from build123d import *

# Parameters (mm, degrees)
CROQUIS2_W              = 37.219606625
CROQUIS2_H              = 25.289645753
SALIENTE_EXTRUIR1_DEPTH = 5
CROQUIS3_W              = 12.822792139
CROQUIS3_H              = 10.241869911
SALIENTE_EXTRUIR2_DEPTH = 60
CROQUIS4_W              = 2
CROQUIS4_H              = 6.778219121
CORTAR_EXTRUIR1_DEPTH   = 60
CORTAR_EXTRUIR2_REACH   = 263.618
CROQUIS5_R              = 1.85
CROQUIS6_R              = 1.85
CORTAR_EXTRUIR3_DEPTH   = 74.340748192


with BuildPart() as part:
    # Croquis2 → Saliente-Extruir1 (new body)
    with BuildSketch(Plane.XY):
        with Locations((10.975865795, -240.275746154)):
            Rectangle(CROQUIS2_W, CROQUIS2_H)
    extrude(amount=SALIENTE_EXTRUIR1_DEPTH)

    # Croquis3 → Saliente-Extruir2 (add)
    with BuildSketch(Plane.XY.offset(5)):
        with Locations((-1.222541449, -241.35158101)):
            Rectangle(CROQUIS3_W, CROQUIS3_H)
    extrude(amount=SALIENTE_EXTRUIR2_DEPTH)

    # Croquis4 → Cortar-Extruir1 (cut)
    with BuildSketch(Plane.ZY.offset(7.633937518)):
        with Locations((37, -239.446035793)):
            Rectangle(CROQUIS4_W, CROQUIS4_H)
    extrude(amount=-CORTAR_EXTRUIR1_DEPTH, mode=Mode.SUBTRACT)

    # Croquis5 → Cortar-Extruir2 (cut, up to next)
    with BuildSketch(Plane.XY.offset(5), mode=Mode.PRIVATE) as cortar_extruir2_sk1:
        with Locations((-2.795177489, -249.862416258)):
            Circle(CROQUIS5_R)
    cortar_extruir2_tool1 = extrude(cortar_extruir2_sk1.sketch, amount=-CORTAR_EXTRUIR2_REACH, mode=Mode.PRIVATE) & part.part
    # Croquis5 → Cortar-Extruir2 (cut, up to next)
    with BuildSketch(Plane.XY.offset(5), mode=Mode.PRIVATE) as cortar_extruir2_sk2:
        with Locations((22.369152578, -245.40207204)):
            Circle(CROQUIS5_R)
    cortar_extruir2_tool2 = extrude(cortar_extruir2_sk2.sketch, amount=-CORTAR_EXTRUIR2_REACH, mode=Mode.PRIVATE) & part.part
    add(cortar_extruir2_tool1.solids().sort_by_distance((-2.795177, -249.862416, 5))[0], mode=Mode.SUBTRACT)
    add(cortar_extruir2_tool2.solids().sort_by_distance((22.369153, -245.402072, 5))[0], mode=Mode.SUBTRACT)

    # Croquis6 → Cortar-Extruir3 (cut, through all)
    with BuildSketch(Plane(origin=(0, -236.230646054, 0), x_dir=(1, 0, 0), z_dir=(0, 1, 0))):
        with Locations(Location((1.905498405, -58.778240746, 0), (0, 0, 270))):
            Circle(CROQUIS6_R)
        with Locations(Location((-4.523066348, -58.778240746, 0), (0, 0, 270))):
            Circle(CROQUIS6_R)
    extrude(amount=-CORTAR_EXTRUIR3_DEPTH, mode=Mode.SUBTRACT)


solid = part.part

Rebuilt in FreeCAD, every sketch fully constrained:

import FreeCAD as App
import Part
import Sketcher
from FreeCAD import Vector
Q = App.Units.Quantity

doc = App.newDocument("Part")
params = doc.addObject("Spreadsheet::Sheet", "Params")
for row, (alias, value) in enumerate([
    ("pad1_length", "5 mm"),
    ("pad2_length", "60 mm"),
    ("sketch3_height", "2 mm"),
    ("pocket1_length", "60 mm"),
    ("sketch4_diameter", "3.7 mm"),
    ("sketch5_diameter", "3.7 mm"),
    ("sketch6_diameter", "3.7 mm"),
], start=1):
    params.set(f"A{row}", alias)
    params.set(f"B{row}", "=" + value)
    params.setAlias(f"B{row}", alias)

body = doc.addObject("PartDesign::Body", "Body")

# Sketch on XY plane
sketch1 = doc.addObject("Sketcher::SketchObject", "Sketch")
body.addObject(sketch1)
sketch1.AttachmentSupport = (doc.XY_Plane, [""])
sketch1.MapMode = "FlatFace"
sketch1.addGeometry([
    Part.LineSegment(Vector(-8, -228, 0), Vector(-8, -253, 0)),
    Part.LineSegment(Vector(-8, -253, 0), Vector(30, -253, 0)),
    Part.LineSegment(Vector(30, -253, 0), Vector(30, -228, 0)),
    Part.LineSegment(Vector(30, -228, 0), Vector(-8, -228, 0)),
], False)
sketch1.addConstraint([
    Sketcher.Constraint("Coincident", 0, 2, 1, 1),
    Sketcher.Constraint("Coincident", 1, 2, 2, 1),
    Sketcher.Constraint("Coincident", 2, 2, 3, 1),
    Sketcher.Constraint("Coincident", 3, 2, 0, 1),
    Sketcher.Constraint("Vertical", 0),
    Sketcher.Constraint("Horizontal", 1),
    Sketcher.Constraint("Vertical", 2),
    Sketcher.Constraint("Horizontal", 3),
    Sketcher.Constraint("DistanceX", 1, 1, 1, 2, Q("37.219607 mm")),
    Sketcher.Constraint("DistanceY", 0, 2, 0, 1, Q("25.289646 mm")),
    Sketcher.Constraint("DistanceY", 0, 2, -1, 1, Q("252.920569 mm")),
    Sketcher.Constraint("DistanceX", -1, 1, 1, 2, Q("29.585669 mm")),
])
pad1 = doc.addObject("PartDesign::Pad", "Pad")
body.addObject(pad1)
pad1.Profile = sketch1
pad1.setExpression("Length", "Params.pad1_length")

# Sketch on XY plane
sketch2 = doc.addObject("Sketcher::SketchObject", "Sketch001")
body.addObject(sketch2)
sketch2.AttachmentSupport = (doc.XY_Plane, [""])
sketch2.MapMode = "FlatFace"
sketch2.AttachmentOffset = App.Placement(Vector(0, 0, 5), App.Rotation())
sketch2.addGeometry([
    Part.LineSegment(Vector(-8, -236, 0), Vector(-8, -246, 0)),
    Part.LineSegment(Vector(-8, -246, 0), Vector(5, -246, 0)),
    Part.LineSegment(Vector(5, -246, 0), Vector(5, -236, 0)),
    Part.LineSegment(Vector(5, -236, 0), Vector(-8, -236, 0)),
], False)
sketch2.addConstraint([
    Sketcher.Constraint("Coincident", 0, 2, 1, 1),
    Sketcher.Constraint("Coincident", 1, 2, 2, 1),
    Sketcher.Constraint("Coincident", 2, 2, 3, 1),
    Sketcher.Constraint("Coincident", 3, 2, 0, 1),
    Sketcher.Constraint("Vertical", 0),
    Sketcher.Constraint("Horizontal", 1),
    Sketcher.Constraint("Vertical", 2),
    Sketcher.Constraint("Horizontal", 3),
    Sketcher.Constraint("DistanceY", 0, 2, 0, 1, Q("10.24187 mm")),
    Sketcher.Constraint("DistanceX", 1, 1, 1, 2, Q("12.822792 mm")),
    Sketcher.Constraint("DistanceX", 0, 2, -1, 1, Q("7.633938 mm")),
    Sketcher.Constraint("DistanceY", 0, 2, -1, 1, Q("246.472516 mm")),
])
pad2 = doc.addObject("PartDesign::Pad", "Pad001")
body.addObject(pad2)
pad2.Profile = sketch2
pad2.setExpression("Length", "Params.pad2_length")

# Sketch on YZ plane
sketch3 = doc.addObject("Sketcher::SketchObject", "Sketch002")
body.addObject(sketch3)
sketch3.AttachmentSupport = (doc.YZ_Plane, [""])
sketch3.MapMode = "FlatFace"
sketch3.AttachmentOffset = App.Placement(Vector(0, 0, -7.633938), App.Rotation())
sketch3.addGeometry([
    Part.LineSegment(Vector(-236.1, 36, 0), Vector(-242.8, 36, 0)),
    Part.LineSegment(Vector(-242.8, 36, 0), Vector(-242.8, 38, 0)),
    Part.LineSegment(Vector(-242.8, 38, 0), Vector(-236.1, 38, 0)),
    Part.LineSegment(Vector(-236.1, 38, 0), Vector(-236.1, 36, 0)),
], False)
sketch3.addConstraint([
    Sketcher.Constraint("Coincident", 0, 2, 1, 1),
    Sketcher.Constraint("Coincident", 1, 2, 2, 1),
    Sketcher.Constraint("Coincident", 2, 2, 3, 1),
    Sketcher.Constraint("Coincident", 3, 2, 0, 1),
    Sketcher.Constraint("Horizontal", 0),
    Sketcher.Constraint("Vertical", 1),
    Sketcher.Constraint("Horizontal", 2),
    Sketcher.Constraint("Vertical", 3),
    Sketcher.Constraint("DistanceY", 1, 1, 1, 2, Q("2 mm")),
    Sketcher.Constraint("DistanceY", -1, 1, 0, 2, Q("36 mm")),
    Sketcher.Constraint("DistanceX", 0, 2, 0, 1, Q("6.778219 mm")),
    Sketcher.Constraint("DistanceX", 0, 2, -1, 1, Q("242.835145 mm")),
])
sketch3.setExpression("Constraints[8]", "Params.sketch3_height")
pocket1 = doc.addObject("PartDesign::Pocket", "Pocket")
body.addObject(pocket1)
pocket1.Profile = sketch3
pocket1.setExpression("Length", "Params.pocket1_length")
pocket1.Reversed = True

# Sketch on XY plane
sketch4 = doc.addObject("Sketcher::SketchObject", "Sketch003")
body.addObject(sketch4)
sketch4.AttachmentSupport = (doc.XY_Plane, [""])
sketch4.MapMode = "FlatFace"
sketch4.AttachmentOffset = App.Placement(Vector(0, 0, 5), App.Rotation())
sketch4.addGeometry(Part.Circle(Vector(-2.8, -249.9, 0), Vector(0, 0, 1), 1.9), False)
sketch4.addConstraint([
    Sketcher.Constraint("Diameter", 0, Q("3.7 mm")),
    Sketcher.Constraint("DistanceX", 0, 3, -1, 1, Q("2.795177 mm")),
    Sketcher.Constraint("DistanceY", 0, 3, -1, 1, Q("249.862416 mm")),
])
sketch4.setExpression("Constraints[0]", "Params.sketch4_diameter")
pocket2 = doc.addObject("PartDesign::Pocket", "Pocket001")
body.addObject(pocket2)
pocket2.Profile = sketch4
pocket2.Type = "UpToFirst"

# Sketch on XY plane
sketch5 = doc.addObject("Sketcher::SketchObject", "Sketch004")
body.addObject(sketch5)
sketch5.AttachmentSupport = (doc.XY_Plane, [""])
sketch5.MapMode = "FlatFace"
sketch5.AttachmentOffset = App.Placement(Vector(0, 0, 5), App.Rotation())
sketch5.addGeometry(Part.Circle(Vector(22.4, -245.4, 0), Vector(0, 0, 1), 1.9), False)
sketch5.addConstraint([
    Sketcher.Constraint("Diameter", 0, Q("3.7 mm")),
    Sketcher.Constraint("DistanceX", -1, 1, 0, 3, Q("22.369153 mm")),
    Sketcher.Constraint("DistanceY", 0, 3, -1, 1, Q("245.402072 mm")),
])
sketch5.setExpression("Constraints[0]", "Params.sketch5_diameter")
pocket3 = doc.addObject("PartDesign::Pocket", "Pocket002")
body.addObject(pocket3)
pocket3.Profile = sketch5
pocket3.Type = "UpToFirst"

# Sketch on XZ plane
sketch6 = doc.addObject("Sketcher::SketchObject", "Sketch005")
body.addObject(sketch6)
sketch6.AttachmentSupport = (doc.XZ_Plane, [""])
sketch6.MapMode = "FlatFace"
sketch6.AttachmentOffset = App.Placement(Vector(0, 0, 236.230646), App.Rotation())
sketch6.addGeometry([
    Part.Circle(Vector(1.9, 58.8, 0), Vector(0, 0, 1), 1.9),
    Part.Circle(Vector(-4.5, 58.8, 0), Vector(0, 0, 1), 1.9),
], False)
sketch6.addConstraint([
    Sketcher.Constraint("Equal", 0, 1),
    Sketcher.Constraint("Horizontal", 0, 3, 1, 3),
    Sketcher.Constraint("Diameter", 0, Q("3.7 mm")),
    Sketcher.Constraint("DistanceX", -1, 1, 0, 3, Q("1.905498 mm")),
    Sketcher.Constraint("DistanceY", -1, 1, 0, 3, Q("58.778241 mm")),
    Sketcher.Constraint("DistanceX", 1, 3, -1, 1, Q("4.523066 mm")),
])
sketch6.setExpression("Constraints[2]", "Params.sketch6_diameter")
pocket4 = doc.addObject("PartDesign::Pocket", "Pocket003")
body.addObject(pocket4)
pocket4.Profile = sketch6
pocket4.Type = "ThroughAll"
pocket4.Reversed = True

doc.recompute()
